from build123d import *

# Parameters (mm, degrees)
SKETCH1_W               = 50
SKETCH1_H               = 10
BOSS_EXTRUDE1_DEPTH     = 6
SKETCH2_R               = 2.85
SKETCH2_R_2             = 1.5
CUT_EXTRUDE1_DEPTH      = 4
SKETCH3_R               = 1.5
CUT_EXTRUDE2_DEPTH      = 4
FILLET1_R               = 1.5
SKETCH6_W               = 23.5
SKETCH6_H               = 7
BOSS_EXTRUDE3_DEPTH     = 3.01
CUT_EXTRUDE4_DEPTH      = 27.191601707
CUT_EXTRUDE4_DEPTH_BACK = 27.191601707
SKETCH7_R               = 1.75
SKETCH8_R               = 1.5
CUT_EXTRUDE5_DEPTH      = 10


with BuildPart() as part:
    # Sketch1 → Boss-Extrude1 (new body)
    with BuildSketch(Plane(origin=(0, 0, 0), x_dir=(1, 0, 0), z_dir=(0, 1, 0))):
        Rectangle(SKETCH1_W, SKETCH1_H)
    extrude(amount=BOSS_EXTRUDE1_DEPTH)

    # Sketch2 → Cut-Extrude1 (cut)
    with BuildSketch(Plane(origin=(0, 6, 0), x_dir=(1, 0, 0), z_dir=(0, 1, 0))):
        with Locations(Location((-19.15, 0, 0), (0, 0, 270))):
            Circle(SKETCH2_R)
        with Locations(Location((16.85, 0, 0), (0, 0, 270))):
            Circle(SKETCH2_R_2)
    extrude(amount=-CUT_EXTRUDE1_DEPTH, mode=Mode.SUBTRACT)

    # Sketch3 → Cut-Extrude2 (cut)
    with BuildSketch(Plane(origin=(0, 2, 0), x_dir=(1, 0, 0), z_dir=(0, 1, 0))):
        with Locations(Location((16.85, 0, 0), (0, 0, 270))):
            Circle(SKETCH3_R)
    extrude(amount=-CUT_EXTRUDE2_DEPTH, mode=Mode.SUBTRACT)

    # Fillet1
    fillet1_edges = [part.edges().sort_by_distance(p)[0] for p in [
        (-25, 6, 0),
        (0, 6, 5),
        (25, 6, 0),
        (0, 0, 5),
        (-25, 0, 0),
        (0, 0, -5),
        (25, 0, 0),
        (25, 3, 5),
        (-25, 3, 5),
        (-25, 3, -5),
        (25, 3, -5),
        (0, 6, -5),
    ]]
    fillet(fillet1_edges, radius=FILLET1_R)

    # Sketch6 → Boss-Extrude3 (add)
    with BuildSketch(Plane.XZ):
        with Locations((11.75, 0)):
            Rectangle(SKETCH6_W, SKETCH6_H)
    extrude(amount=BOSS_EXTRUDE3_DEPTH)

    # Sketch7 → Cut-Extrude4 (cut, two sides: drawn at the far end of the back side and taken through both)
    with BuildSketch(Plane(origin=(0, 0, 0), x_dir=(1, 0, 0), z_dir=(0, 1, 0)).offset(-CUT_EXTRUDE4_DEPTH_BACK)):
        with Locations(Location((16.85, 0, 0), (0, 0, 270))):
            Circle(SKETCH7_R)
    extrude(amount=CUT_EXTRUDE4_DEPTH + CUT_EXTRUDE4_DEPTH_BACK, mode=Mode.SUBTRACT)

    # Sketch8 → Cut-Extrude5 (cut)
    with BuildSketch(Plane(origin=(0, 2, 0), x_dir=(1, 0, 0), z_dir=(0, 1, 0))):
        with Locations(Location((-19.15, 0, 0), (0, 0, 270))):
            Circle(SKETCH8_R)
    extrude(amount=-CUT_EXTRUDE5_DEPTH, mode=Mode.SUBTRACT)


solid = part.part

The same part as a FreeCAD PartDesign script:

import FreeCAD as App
import Part
import Sketcher
from FreeCAD import Vector


def edges_at(feature, points):
    """Names of the edges that pass closest to the given points."""
    edges = feature.Shape.Edges
    near = lambda p: min(range(len(edges)), key=lambda i: edges[i].distToShape(Part.Vertex(*p))[0])
    return sorted({f"Edge{near(p) + 1}" for p in points})

doc = App.newDocument("Part")
body = doc.addObject("PartDesign::Body", "Body")

# Sketch on XZ plane
sketch1 = doc.addObject("Sketcher::SketchObject", "Sketch")
body.addObject(sketch1)
sketch1.AttachmentSupport = (doc.XZ_Plane, [""])
sketch1.MapMode = "FlatFace"
sketch1.addGeometry([
    Part.LineSegment(Vector(-25, -5, 0), Vector(-25, 5, 0)),
    Part.LineSegment(Vector(-25, 5, 0), Vector(25, 5, 0)),
    Part.LineSegment(Vector(25, 5, 0), Vector(25, -5, 0)),
    Part.LineSegment(Vector(25, -5, 0), Vector(-25, -5, 0)),
], False)
sketch1.addConstraint([
    Sketcher.Constraint("Coincident", 0, 2, 1, 1),
    Sketcher.Constraint("Coincident", 1, 2, 2, 1),
    Sketcher.Constraint("Coincident", 2, 2, 3, 1),
    Sketcher.Constraint("Coincident", 3, 2, 0, 1),
    Sketcher.Constraint("Vertical", 0),
    Sketcher.Constraint("Horizontal", 1),
    Sketcher.Constraint("Vertical", 2),
    Sketcher.Constraint("Horizontal", 3),
    Sketcher.Constraint("Symmetric", 0, 2, 2, 2, -1, 1),
    Sketcher.Constraint("DistanceX", 1, 1, 1, 2, 50.0),
    Sketcher.Constraint("DistanceY", 0, 1, 0, 2, 10.0),
])
pad1 = doc.addObject("PartDesign::Pad", "Pad")
body.addObject(pad1)
pad1.Profile = sketch1
pad1.Length = 6
pad1.Reversed = True

# Sketch on XZ plane
sketch2 = doc.addObject("Sketcher::SketchObject", "Sketch001")
body.addObject(sketch2)
sketch2.AttachmentSupport = (doc.XZ_Plane, [""])
sketch2.MapMode = "FlatFace"
sketch2.AttachmentOffset = App.Placement(Vector(0, 0, -6), App.Rotation())
sketch2.addGeometry([
    Part.Circle(Vector(-19.15, 0, 0), Vector(0, 0, 1), 2.85),
    Part.Circle(Vector(16.85, 0, 0), Vector(0, 0, 1), 1.5),
], False)
sketch2.addConstraint([
    Sketcher.Constraint("PointOnObject", 0, 3, -1),
    Sketcher.Constraint("PointOnObject", 1, 3, -1),
    Sketcher.Constraint("Diameter", 1, 3.0),
    Sketcher.Constraint("Diameter", 0, 5.7),
    Sketcher.Constraint("DistanceX", 0, 3, 1, 3, 36.0),
    Sketcher.Constraint("DistanceX", 0, 3, -1, 1, 19.15),
])
pocket1 = doc.addObject("PartDesign::Pocket", "Pocket")
body.addObject(pocket1)
pocket1.Profile = sketch2
pocket1.Length = 4
pocket1.Reversed = True

# Sketch on XZ plane
sketch3 = doc.addObject("Sketcher::SketchObject", "Sketch002")
body.addObject(sketch3)
sketch3.AttachmentSupport = (doc.XZ_Plane, [""])
sketch3.MapMode = "FlatFace"
sketch3.AttachmentOffset = App.Placement(Vector(0, 0, -2), App.Rotation())
sketch3.addGeometry(Part.Circle(Vector(16.85, 0, 0), Vector(0, 0, 1), 1.5), False)
sketch3.addConstraint([
    Sketcher.Constraint("PointOnObject", 0, 3, -1),
    Sketcher.Constraint("Diameter", 0, 3.0),
    Sketcher.Constraint("DistanceX", -1, 1, 0, 3, 16.85),
])
pocket2 = doc.addObject("PartDesign::Pocket", "Pocket001")
body.addObject(pocket2)
pocket2.Profile = sketch3
pocket2.Length = 4
pocket2.Reversed = True
doc.recompute()

fillet = doc.addObject("PartDesign::Fillet", "Fillet")
body.addObject(fillet)
fillet.Base = (pocket2, edges_at(pocket2, [
    (-25, 6, 0),
    (0, 6, 5),
    (25, 6, 0),
    (0, 0, 5),
    (-25, 0, 0),
    (0, 0, -5),
    (25, 0, 0),
    (25, 3, 5),
    (-25, 3, 5),
    (-25, 3, -5),
    (25, 3, -5),
    (0, 6, -5),
]))
fillet.Radius = 1.5

# Sketch on XZ plane
sketch4 = doc.addObject("Sketcher::SketchObject", "Sketch003")
body.addObject(sketch4)
sketch4.AttachmentSupport = (doc.XZ_Plane, [""])
sketch4.MapMode = "FlatFace"
sketch4.addGeometry([
    Part.LineSegment(Vector(0, 3.5, 0), Vector(0, -3.5, 0)),
    Part.LineSegment(Vector(0, -3.5, 0), Vector(23.5, -3.5, 0)),
    Part.LineSegment(Vector(23.5, -3.5, 0), Vector(23.5, 3.5, 0)),
    Part.LineSegment(Vector(23.5, 3.5, 0), Vector(0, 3.5, 0)),
], False)
sketch4.addConstraint([
    Sketcher.Constraint("Coincident", 0, 2, 1, 1),
    Sketcher.Constraint("Coincident", 1, 2, 2, 1),
    Sketcher.Constraint("Coincident", 2, 2, 3, 1),
    Sketcher.Constraint("Coincident", 3, 2, 0, 1),
    Sketcher.Constraint("Vertical", 0),
    Sketcher.Constraint("Horizontal", 1),
    Sketcher.Constraint("Vertical", 2),
    Sketcher.Constraint("Horizontal", 3),
    Sketcher.Constraint("Symmetric", 0, 2, 3, 2, -1, 1),
    Sketcher.Constraint("DistanceY", 0, 2, 0, 1, 7.0),
    Sketcher.Constraint("DistanceX", 1, 1, 1, 2, 23.5),
])
pad2 = doc.addObject("PartDesign::Pad", "Pad001")
body.addObject(pad2)
pad2.Profile = sketch4
pad2.Length = 3.01

# Sketch on XZ plane
sketch5 = doc.addObject("Sketcher::SketchObject", "Sketch004")
body.addObject(sketch5)
sketch5.AttachmentSupport = (doc.XZ_Plane, [""])
sketch5.MapMode = "FlatFace"
sketch5.addGeometry(Part.Circle(Vector(16.85, 0, 0), Vector(0, 0, 1), 1.75), False)
sketch5.addConstraint([
    Sketcher.Constraint("PointOnObject", 0, 3, -1),
    Sketcher.Constraint("Diameter", 0, 3.5),
    Sketcher.Constraint("DistanceX", -1, 1, 0, 3, 16.85),
])
pocket3 = doc.addObject("PartDesign::Pocket", "Pocket002")
body.addObject(pocket3)
pocket3.Profile = sketch5
pocket3.Type = "ThroughAll"
pocket3.Midplane = True

# Sketch on XZ plane
sketch6 = doc.addObject("Sketcher::SketchObject", "Sketch005")
body.addObject(sketch6)
sketch6.AttachmentSupport = (doc.XZ_Plane, [""])
sketch6.MapMode = "FlatFace"
sketch6.AttachmentOffset = App.Placement(Vector(0, 0, -2), App.Rotation())
sketch6.addGeometry(Part.Circle(Vector(-19.15, 0, 0), Vector(0, 0, 1), 1.5), False)
sketch6.addConstraint([
    Sketcher.Constraint("PointOnObject", 0, 3, -1),
    Sketcher.Constraint("Diameter", 0, 3.0),
    Sketcher.Constraint("DistanceX", 0, 3, -1, 1, 19.15),
])
pocket4 = doc.addObject("PartDesign::Pocket", "Pocket003")
body.addObject(pocket4)
pocket4.Profile = sketch6
pocket4.Length = 10
pocket4.Reversed = True

doc.recompute()
